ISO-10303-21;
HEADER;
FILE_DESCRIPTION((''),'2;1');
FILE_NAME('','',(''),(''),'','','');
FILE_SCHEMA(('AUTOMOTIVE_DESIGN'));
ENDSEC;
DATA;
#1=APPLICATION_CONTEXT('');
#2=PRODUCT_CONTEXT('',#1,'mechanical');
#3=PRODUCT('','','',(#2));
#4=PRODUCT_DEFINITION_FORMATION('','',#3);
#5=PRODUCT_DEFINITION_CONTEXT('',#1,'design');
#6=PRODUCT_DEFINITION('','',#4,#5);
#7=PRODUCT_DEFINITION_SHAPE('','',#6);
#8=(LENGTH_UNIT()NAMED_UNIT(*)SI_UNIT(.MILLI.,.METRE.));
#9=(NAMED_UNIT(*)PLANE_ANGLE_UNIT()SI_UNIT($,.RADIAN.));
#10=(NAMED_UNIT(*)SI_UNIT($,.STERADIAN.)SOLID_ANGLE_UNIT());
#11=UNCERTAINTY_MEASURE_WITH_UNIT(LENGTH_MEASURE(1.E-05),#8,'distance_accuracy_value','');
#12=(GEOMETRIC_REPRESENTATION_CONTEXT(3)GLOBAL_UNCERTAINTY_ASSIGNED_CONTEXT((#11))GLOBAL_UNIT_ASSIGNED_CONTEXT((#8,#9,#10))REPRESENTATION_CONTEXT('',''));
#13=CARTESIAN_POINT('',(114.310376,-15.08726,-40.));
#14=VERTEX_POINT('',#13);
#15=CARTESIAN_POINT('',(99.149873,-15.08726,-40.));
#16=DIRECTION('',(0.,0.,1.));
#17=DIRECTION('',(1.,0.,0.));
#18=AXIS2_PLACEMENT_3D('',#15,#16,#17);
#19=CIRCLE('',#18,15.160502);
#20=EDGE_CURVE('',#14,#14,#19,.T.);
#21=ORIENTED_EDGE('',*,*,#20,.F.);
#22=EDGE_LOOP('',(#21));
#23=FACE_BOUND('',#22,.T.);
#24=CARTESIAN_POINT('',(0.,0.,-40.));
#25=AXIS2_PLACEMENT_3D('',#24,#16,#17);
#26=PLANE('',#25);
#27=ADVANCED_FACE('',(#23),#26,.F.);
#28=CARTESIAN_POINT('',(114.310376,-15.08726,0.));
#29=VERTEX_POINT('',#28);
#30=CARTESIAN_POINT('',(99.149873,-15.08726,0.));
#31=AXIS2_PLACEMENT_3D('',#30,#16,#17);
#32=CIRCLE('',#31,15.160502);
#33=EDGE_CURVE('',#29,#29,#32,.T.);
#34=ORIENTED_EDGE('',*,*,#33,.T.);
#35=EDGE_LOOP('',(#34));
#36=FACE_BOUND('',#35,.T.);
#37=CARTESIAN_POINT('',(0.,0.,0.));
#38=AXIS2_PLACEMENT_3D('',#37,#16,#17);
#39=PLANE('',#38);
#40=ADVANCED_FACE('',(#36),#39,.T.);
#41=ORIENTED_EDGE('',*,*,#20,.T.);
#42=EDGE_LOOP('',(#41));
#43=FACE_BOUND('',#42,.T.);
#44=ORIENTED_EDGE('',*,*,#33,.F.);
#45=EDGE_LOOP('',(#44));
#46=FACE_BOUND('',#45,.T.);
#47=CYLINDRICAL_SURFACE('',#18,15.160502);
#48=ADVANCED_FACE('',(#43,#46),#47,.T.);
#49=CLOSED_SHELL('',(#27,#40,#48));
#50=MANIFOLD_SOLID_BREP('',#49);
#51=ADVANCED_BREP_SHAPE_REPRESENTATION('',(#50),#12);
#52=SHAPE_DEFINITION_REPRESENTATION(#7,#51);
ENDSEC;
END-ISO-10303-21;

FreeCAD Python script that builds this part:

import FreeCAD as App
import Part
import Sketcher
Q = App.Units.Quantity

doc = App.newDocument("Part")
body = doc.addObject("PartDesign::Body", "Body")

# Sketch on XY plane
sketch1 = doc.addObject("Sketcher::SketchObject", "Sketch")
body.addObject(sketch1)
sketch1.AttachmentSupport = (doc.XY_Plane, [""])
sketch1.MapMode = "FlatFace"
sketch1.addGeometry(Part.Circle(App.Vector(99.149873, -15.08726, 0), App.Vector(0, 0, 1), 15.160502), False)
sketch1.addConstraint(Sketcher.Constraint("Diameter", 0, Q("30.321005 mm")))
sketch1.addConstraint(Sketcher.Constraint("DistanceY", 0, 3, -1, 1, Q("15.08726 mm")))
sketch1.addConstraint(Sketcher.Constraint("DistanceX", -1, 1, 0, 3, Q("99.149873 mm")))
pad1 = doc.addObject("PartDesign::Pad", "Pad")
body.addObject(pad1)
pad1.Profile = sketch1
pad1.Length = 40
pad1.Reversed = True

doc.recompute()
